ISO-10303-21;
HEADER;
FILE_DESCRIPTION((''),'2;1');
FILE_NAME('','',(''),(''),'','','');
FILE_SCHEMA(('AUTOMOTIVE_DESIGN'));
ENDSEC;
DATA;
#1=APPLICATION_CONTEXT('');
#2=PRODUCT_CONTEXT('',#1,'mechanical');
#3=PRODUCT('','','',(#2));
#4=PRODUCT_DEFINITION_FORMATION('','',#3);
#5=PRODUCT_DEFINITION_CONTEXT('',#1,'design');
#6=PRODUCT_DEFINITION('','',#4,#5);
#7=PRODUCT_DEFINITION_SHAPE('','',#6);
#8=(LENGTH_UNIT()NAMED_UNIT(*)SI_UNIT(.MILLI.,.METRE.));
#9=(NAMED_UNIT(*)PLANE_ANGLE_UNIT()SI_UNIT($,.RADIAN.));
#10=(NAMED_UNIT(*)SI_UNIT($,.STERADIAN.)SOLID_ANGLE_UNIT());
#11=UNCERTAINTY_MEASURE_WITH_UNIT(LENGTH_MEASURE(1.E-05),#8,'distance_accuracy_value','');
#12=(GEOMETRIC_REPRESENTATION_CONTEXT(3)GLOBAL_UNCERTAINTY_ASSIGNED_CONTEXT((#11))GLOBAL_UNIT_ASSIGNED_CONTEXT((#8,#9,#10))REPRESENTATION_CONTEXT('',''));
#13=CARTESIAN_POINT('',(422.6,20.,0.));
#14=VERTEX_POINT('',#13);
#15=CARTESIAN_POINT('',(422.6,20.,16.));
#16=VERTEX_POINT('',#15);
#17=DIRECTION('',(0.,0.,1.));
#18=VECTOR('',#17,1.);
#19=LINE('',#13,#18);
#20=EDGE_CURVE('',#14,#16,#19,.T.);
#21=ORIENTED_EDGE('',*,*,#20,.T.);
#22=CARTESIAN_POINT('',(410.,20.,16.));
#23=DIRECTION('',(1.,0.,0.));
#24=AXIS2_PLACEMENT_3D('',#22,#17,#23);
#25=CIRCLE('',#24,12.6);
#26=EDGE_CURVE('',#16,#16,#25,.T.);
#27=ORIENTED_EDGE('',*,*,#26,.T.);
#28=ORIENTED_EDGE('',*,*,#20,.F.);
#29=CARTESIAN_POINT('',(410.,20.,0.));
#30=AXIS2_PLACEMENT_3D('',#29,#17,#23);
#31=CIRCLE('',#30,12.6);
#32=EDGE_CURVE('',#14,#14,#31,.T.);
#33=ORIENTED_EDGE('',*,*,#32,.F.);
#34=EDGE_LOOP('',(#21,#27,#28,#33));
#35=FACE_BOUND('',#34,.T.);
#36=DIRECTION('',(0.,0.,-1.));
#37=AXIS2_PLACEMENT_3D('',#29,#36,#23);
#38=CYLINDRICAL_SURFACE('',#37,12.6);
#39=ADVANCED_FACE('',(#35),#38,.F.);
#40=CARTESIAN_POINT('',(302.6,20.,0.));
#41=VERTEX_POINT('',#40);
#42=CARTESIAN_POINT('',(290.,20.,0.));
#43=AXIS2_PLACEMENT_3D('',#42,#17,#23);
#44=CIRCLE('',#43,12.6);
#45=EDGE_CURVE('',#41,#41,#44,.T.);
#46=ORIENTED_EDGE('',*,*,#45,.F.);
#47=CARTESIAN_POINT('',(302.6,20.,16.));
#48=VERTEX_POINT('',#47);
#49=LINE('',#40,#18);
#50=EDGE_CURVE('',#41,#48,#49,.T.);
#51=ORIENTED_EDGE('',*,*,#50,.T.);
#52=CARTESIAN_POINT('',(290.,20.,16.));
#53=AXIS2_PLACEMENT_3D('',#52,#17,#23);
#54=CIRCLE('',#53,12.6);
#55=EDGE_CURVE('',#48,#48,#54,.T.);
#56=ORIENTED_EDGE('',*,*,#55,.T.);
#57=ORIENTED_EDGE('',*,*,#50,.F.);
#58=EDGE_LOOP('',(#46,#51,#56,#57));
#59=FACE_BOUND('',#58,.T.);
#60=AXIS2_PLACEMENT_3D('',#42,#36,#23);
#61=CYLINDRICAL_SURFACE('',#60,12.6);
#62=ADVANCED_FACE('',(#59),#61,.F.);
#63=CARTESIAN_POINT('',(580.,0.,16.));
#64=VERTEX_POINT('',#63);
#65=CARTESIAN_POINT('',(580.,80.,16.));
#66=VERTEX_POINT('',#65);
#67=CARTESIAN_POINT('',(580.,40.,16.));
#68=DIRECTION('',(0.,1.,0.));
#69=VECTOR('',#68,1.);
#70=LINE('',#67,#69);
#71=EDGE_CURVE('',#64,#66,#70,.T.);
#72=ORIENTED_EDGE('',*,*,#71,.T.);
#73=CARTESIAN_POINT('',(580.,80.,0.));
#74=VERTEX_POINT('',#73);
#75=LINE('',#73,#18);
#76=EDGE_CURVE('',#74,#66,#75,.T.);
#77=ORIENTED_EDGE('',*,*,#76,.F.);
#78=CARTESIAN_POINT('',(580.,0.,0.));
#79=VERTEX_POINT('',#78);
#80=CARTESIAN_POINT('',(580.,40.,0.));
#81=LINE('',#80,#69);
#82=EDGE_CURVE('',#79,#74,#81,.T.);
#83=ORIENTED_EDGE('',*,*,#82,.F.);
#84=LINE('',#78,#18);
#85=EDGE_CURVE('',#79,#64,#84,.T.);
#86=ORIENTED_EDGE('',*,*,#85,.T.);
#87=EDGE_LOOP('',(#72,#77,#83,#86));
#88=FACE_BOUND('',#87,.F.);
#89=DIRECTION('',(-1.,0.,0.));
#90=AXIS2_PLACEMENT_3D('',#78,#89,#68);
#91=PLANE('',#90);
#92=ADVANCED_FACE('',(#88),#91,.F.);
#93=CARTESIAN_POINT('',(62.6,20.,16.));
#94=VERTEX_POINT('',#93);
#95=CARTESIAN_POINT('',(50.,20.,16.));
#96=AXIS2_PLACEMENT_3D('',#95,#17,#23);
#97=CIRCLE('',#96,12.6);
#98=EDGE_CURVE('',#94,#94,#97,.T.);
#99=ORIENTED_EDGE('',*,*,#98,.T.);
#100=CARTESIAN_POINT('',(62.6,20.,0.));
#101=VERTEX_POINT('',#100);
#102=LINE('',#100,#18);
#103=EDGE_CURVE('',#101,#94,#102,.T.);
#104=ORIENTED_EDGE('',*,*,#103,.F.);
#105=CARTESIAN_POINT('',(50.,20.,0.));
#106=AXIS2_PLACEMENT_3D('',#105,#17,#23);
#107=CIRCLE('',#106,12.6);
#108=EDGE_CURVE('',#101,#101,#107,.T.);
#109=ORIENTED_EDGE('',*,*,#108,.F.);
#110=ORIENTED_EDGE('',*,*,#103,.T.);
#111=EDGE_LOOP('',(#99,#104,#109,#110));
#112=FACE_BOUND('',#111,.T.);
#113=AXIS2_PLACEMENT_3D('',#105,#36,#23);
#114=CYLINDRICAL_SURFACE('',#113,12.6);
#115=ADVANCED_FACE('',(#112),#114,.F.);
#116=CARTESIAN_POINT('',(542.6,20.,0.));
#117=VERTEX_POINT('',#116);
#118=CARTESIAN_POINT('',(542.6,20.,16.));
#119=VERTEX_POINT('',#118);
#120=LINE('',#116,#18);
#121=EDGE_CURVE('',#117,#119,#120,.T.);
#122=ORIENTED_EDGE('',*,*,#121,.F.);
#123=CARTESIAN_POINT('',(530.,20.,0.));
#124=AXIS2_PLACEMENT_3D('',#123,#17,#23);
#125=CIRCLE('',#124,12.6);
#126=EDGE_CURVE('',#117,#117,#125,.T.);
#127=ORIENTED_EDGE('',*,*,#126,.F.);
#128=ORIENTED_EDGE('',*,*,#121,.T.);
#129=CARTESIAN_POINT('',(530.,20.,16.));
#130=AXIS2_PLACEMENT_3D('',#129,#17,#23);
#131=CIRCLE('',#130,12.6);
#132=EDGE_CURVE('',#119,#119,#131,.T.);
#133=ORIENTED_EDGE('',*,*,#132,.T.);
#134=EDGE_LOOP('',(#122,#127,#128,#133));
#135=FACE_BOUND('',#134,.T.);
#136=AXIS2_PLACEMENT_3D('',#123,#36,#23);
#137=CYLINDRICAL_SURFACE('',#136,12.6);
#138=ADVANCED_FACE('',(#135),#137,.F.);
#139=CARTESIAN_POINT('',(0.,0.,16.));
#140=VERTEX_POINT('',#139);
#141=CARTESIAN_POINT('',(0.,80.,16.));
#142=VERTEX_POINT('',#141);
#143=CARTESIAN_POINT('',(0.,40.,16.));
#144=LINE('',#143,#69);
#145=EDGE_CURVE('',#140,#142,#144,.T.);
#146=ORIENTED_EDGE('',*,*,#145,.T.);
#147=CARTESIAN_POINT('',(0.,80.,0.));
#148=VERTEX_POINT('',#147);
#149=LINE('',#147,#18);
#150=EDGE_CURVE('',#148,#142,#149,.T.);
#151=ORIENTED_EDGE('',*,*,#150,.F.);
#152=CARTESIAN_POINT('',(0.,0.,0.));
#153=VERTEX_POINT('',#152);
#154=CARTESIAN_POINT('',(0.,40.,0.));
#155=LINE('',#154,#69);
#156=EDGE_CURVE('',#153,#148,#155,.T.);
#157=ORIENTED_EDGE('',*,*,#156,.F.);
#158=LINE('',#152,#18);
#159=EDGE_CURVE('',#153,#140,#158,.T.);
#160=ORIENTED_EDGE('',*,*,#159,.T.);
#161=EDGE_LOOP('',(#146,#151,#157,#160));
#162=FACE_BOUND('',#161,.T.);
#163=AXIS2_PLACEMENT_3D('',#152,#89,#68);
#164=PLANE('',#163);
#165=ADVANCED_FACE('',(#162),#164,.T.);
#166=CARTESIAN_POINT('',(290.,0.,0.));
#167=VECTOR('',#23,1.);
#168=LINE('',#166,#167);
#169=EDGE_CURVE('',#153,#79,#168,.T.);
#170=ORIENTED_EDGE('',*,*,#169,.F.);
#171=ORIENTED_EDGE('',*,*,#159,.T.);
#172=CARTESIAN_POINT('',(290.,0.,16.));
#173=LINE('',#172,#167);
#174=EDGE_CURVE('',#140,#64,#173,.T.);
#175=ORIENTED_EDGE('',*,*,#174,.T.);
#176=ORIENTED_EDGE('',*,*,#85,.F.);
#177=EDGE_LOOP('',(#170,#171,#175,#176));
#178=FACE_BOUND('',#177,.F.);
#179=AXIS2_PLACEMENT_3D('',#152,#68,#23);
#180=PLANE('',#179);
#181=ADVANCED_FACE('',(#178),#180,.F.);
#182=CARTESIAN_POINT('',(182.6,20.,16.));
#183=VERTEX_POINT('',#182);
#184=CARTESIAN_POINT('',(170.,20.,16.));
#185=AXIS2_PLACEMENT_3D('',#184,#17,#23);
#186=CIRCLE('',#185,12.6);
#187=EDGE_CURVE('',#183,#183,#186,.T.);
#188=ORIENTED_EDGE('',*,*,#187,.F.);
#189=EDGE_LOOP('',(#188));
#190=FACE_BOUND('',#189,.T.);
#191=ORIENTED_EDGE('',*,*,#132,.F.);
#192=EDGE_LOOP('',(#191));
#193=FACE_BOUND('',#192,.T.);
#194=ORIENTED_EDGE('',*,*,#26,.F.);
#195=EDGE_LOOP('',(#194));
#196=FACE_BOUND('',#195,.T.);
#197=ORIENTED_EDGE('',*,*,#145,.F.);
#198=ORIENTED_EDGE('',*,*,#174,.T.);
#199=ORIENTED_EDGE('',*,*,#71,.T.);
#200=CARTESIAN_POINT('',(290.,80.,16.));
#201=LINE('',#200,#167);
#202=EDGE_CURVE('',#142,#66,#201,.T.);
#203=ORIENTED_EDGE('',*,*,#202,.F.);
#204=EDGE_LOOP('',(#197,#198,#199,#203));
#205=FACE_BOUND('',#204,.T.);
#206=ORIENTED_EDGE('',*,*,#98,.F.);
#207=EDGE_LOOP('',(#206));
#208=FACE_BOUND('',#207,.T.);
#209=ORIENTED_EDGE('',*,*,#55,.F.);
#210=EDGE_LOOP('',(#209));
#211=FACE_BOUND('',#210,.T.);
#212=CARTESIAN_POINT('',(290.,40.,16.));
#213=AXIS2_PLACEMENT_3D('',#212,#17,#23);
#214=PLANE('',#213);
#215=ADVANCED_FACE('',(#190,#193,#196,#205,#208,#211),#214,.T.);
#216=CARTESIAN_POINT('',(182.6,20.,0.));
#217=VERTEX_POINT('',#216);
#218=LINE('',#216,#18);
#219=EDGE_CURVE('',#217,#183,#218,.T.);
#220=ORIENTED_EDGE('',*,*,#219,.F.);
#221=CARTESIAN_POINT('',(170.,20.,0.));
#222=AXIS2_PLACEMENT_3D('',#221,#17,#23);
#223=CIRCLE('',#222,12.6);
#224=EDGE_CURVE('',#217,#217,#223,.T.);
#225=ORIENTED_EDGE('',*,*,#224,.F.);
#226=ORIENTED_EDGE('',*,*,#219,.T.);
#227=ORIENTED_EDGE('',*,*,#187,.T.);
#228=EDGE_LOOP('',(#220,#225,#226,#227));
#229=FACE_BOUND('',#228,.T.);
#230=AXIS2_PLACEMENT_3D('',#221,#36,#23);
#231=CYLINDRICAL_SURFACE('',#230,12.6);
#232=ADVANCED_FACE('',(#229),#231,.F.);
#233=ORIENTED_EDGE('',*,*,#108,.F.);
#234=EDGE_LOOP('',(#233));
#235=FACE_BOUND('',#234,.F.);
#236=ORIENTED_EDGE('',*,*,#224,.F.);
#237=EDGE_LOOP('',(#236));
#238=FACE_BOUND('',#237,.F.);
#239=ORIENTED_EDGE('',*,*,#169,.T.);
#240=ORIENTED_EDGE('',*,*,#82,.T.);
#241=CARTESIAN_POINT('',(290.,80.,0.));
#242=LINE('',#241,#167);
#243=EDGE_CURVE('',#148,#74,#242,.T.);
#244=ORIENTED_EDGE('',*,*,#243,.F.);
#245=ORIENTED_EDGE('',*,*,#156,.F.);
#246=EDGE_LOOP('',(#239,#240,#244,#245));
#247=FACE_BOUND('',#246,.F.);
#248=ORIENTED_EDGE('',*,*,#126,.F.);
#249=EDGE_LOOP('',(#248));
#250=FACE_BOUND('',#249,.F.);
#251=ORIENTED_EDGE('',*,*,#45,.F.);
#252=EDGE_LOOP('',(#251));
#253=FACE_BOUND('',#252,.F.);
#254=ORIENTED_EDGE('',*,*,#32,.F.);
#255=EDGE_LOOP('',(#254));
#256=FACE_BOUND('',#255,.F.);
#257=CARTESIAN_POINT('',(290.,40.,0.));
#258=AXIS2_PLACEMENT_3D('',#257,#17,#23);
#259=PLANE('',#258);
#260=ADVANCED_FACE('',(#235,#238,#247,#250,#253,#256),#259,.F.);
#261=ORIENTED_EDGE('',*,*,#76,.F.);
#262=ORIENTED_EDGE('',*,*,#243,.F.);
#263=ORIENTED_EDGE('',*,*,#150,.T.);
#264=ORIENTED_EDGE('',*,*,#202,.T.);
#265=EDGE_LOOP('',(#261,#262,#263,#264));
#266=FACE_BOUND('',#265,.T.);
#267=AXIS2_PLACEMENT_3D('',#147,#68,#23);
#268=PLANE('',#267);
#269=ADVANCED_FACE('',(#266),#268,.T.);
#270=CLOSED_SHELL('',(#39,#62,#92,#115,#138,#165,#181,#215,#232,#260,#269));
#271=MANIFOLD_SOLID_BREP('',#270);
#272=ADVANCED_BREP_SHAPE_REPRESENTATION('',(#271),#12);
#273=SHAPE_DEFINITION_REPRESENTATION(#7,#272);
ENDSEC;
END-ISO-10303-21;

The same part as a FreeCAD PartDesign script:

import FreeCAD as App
import Part
import Sketcher

V = App.Vector
Q = App.Units.Quantity


def add_polygon(sketch, points):
    """Adds a closed chain of lines whose ends are joined by coincident constraints."""
    first, n = sketch.GeometryCount, len(points)
    for a, b in zip(points, points[1:] + points[:1]):
        sketch.addGeometry(Part.LineSegment(App.Vector(*a, 0), App.Vector(*b, 0)), False)
    for i in range(n):
        sketch.addConstraint(Sketcher.Constraint("Coincident", first + i, 2, first + (i + 1) % n, 1))

doc = App.newDocument("Part")
body = doc.addObject("PartDesign::Body", "Body")

# Sketch on XY plane
sketch1 = body.newObject("Sketcher::SketchObject", "Sketch")
sketch1.AttachmentSupport = (doc.getObject("XY_Plane"), [""])
sketch1.MapMode = "FlatFace"
add_polygon(sketch1, [(0, 80), (0, 0), (580, 0), (580, 80)])  # lines 0-3
sketch1.addGeometry(Part.Circle(V(50, 20, 0), V(0, 0, 1), 13), False)  # 4
sketch1.addGeometry(Part.Circle(V(170, 20, 0), V(0, 0, 1), 13), False)  # 5
sketch1.addGeometry(Part.Circle(V(290, 20, 0), V(0, 0, 1), 13), False)  # 6
sketch1.addGeometry(Part.Circle(V(410, 20, 0), V(0, 0, 1), 13), False)  # 7
sketch1.addGeometry(Part.Circle(V(530, 20, 0), V(0, 0, 1), 13), False)  # 8
sketch1.addConstraint([
    Sketcher.Constraint("Vertical", 0),
    Sketcher.Constraint("Horizontal", 1),
    Sketcher.Constraint("Vertical", 2),
    Sketcher.Constraint("Horizontal", 3),
    Sketcher.Constraint("Coincident", 0, 2, -1, 1),
    Sketcher.Constraint("Equal", 4, 5),
    Sketcher.Constraint("Equal", 5, 6),
    Sketcher.Constraint("Equal", 6, 7),
    Sketcher.Constraint("Equal", 7, 8),
    Sketcher.Constraint("Horizontal", 4, 3, 5, 3),
    Sketcher.Constraint("Horizontal", 5, 3, 6, 3),
    Sketcher.Constraint("Horizontal", 6, 3, 7, 3),
    Sketcher.Constraint("Horizontal", 7, 3, 8, 3),
    Sketcher.Constraint("Diameter", 4, Q("25.2 mm")),
    Sketcher.Constraint("DistanceX", 1, 1, 1, 2, Q("580 mm")),
    Sketcher.Constraint("DistanceY", 0, 2, 0, 1, Q("80 mm")),
    Sketcher.Constraint("DistanceX", -1, 1, 4, 3, Q("50 mm")),
    Sketcher.Constraint("DistanceY", -1, 1, 4, 3, Q("20 mm")),
    Sketcher.Constraint("DistanceX", -1, 1, 5, 3, Q("170 mm")),
    Sketcher.Constraint("DistanceX", -1, 1, 6, 3, Q("290 mm")),
    Sketcher.Constraint("DistanceX", -1, 1, 7, 3, Q("410 mm")),
    Sketcher.Constraint("DistanceX", -1, 1, 8, 3, Q("530 mm")),
])
pad1 = body.newObject("PartDesign::Pad", "Pad")
pad1.Profile = sketch1
pad1.Length = 16

doc.recompute()
